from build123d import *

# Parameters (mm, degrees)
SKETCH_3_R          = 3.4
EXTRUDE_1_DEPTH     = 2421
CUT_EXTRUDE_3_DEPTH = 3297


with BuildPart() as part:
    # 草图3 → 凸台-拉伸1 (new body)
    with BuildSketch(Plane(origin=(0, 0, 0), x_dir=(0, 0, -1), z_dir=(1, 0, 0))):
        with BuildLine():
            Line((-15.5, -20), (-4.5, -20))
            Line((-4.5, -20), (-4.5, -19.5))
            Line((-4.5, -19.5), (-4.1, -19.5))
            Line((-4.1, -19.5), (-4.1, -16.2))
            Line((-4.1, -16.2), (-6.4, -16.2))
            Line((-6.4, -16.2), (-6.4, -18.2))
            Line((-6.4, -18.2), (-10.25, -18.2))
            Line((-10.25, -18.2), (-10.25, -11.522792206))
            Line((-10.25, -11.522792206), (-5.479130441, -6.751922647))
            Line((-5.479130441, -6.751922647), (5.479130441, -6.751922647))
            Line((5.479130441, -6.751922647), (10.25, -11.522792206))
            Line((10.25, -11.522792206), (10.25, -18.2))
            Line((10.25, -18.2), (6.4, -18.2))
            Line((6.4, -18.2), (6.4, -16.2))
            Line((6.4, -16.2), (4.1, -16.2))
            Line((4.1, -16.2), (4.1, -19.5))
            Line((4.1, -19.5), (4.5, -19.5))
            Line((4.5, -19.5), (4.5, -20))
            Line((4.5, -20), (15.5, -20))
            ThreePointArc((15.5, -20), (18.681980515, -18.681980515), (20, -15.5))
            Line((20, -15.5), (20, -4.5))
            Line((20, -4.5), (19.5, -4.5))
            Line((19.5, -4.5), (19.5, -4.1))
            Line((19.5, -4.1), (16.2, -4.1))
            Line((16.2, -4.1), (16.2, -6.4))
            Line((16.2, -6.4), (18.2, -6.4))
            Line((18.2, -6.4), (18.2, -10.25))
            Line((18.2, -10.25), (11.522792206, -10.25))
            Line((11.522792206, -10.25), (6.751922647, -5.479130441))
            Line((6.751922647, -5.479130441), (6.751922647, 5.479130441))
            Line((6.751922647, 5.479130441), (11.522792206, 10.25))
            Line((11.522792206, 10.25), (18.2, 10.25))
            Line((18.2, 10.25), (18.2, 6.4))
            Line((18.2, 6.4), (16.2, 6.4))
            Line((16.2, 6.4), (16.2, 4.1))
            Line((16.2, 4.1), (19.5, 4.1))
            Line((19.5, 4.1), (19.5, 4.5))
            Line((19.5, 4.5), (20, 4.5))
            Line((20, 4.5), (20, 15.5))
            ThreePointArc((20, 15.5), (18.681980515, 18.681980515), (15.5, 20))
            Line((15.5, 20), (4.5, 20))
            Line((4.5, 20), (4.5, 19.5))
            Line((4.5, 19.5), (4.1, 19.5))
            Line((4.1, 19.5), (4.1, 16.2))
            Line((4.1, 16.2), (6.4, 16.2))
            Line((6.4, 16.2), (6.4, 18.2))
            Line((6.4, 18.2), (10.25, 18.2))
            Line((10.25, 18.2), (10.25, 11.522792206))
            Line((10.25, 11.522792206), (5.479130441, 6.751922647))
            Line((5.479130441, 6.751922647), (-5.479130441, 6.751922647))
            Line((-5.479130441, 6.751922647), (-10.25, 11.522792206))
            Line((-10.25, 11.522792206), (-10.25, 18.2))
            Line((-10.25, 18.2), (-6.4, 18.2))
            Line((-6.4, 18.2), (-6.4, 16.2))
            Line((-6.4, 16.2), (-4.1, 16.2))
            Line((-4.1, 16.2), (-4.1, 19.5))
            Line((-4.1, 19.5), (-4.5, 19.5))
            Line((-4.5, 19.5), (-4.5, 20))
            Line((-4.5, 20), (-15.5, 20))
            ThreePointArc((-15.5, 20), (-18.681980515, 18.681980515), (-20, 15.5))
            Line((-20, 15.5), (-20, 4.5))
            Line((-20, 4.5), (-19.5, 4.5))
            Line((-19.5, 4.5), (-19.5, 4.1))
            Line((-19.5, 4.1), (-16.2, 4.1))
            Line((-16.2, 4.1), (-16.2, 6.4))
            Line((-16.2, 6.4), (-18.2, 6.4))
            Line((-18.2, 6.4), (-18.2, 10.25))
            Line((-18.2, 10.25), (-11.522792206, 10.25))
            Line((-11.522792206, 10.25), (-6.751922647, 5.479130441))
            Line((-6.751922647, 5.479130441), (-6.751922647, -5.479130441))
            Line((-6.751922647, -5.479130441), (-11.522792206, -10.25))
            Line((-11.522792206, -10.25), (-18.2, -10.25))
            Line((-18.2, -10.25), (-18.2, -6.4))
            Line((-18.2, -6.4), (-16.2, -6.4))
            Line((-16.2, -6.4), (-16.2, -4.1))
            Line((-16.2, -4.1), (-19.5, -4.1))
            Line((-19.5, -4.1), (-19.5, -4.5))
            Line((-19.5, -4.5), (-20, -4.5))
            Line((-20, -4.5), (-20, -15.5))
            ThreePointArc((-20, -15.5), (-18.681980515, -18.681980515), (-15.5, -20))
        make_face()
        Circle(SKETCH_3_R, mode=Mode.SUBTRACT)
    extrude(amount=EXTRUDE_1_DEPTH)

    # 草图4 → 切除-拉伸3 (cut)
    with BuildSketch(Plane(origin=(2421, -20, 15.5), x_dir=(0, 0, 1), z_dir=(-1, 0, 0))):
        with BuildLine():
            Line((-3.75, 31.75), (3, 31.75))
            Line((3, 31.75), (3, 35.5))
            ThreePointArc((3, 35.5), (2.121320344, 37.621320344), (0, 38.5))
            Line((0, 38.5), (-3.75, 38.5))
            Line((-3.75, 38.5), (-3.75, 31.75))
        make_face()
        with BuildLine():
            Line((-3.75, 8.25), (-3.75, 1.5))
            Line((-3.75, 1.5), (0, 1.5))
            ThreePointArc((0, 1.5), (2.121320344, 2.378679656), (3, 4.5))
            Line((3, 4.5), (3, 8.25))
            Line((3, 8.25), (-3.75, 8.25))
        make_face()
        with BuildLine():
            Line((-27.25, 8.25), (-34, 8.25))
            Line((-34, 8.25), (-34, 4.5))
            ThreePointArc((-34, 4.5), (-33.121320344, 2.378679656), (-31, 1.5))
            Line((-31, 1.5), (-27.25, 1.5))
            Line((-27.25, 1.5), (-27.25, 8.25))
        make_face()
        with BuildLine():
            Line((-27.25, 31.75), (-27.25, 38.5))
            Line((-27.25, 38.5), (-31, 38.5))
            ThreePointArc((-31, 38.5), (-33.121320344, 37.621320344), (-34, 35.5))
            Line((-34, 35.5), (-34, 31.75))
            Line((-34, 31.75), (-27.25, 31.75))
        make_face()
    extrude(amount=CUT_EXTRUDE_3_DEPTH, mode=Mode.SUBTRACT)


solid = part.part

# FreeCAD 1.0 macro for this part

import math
import FreeCAD as App
import Part
import Sketcher

V = App.Vector

doc = App.newDocument("Part")
params = doc.addObject("Spreadsheet::Sheet", "Params")
for row, (alias, value) in enumerate([
    ("sketch1_diameter", "6.8 mm"),
    ("sketch1_radius", "4.5 mm"),
    ("sketch1_width", "2 mm"),
    ("sketch1_width2", "11 mm"),
    ("sketch1_width3", "0.5 mm"),
    ("pad1_length", "2421 mm"),
    ("sketch2_radius", "3 mm"),
    ("sketch2_width", "3.75 mm"),
    ("pocket1_length", "3297 mm"),
], start=1):
    params.set(f"A{row}", alias)
    params.set(f"B{row}", "=" + value)
    params.setAlias(f"B{row}", alias)

body = doc.addObject("PartDesign::Body", "Body")

# Sketch on YZ plane
sketch1 = body.newObject("Sketcher::SketchObject", "Sketch")
sketch1.AttachmentSupport = (doc.getObject("YZ_Plane"), [""])
sketch1.MapMode = "FlatFace"
sketch1.addGeometry([
    Part.LineSegment(V(-20, 15.5, 0), V(-20, 4.5, 0)),  # 0
    Part.LineSegment(V(-20, 4.5, 0), V(-19.5, 4.5, 0)),  # 1
    Part.LineSegment(V(-19.5, 4.5, 0), V(-19.5, 4.1, 0)),  # 2
    Part.LineSegment(V(-19.5, 4.1, 0), V(-16.2, 4.1, 0)),  # 3
    Part.LineSegment(V(-16.2, 4.1, 0), V(-16.2, 6.4, 0)),  # 4
    Part.LineSegment(V(-16.2, 6.4, 0), V(-18.2, 6.4, 0)),  # 5
    Part.LineSegment(V(-18.2, 6.4, 0), V(-18.2, 10.25, 0)),  # 6
    Part.LineSegment(V(-18.2, 10.25, 0), V(-11.52, 10.25, 0)),  # 7
    Part.LineSegment(V(-11.52, 10.25, 0), V(-6.75, 5.48, 0)),  # 8
    Part.LineSegment(V(-6.75, 5.48, 0), V(-6.75, -5.48, 0)),  # 9
    Part.LineSegment(V(-6.75, -5.48, 0), V(-11.52, -10.25, 0)),  # 10
    Part.LineSegment(V(-11.52, -10.25, 0), V(-18.2, -10.25, 0)),  # 11
    Part.LineSegment(V(-18.2, -10.25, 0), V(-18.2, -6.4, 0)),  # 12
    Part.LineSegment(V(-18.2, -6.4, 0), V(-16.2, -6.4, 0)),  # 13
    Part.LineSegment(V(-16.2, -6.4, 0), V(-16.2, -4.1, 0)),  # 14
    Part.LineSegment(V(-16.2, -4.1, 0), V(-19.5, -4.1, 0)),  # 15
    Part.LineSegment(V(-19.5, -4.1, 0), V(-19.5, -4.5, 0)),  # 16
    Part.LineSegment(V(-19.5, -4.5, 0), V(-20, -4.5, 0)),  # 17
    Part.LineSegment(V(-20, -4.5, 0), V(-20, -15.5, 0)),  # 18
    Part.ArcOfCircle(Part.Circle(V(-15.5, -15.5, 0), V(0, 0, 1), 4.5), math.radians(-180), math.radians(-90)),  # 19
    Part.LineSegment(V(-15.5, -20, 0), V(-4.5, -20, 0)),  # 20
    Part.LineSegment(V(-4.5, -20, 0), V(-4.5, -19.5, 0)),  # 21
    Part.LineSegment(V(-4.5, -19.5, 0), V(-4.1, -19.5, 0)),  # 22
    Part.LineSegment(V(-4.1, -19.5, 0), V(-4.1, -16.2, 0)),  # 23
    Part.LineSegment(V(-4.1, -16.2, 0), V(-6.4, -16.2, 0)),  # 24
    Part.LineSegment(V(-6.4, -16.2, 0), V(-6.4, -18.2, 0)),  # 25
    Part.LineSegment(V(-6.4, -18.2, 0), V(-10.25, -18.2, 0)),  # 26
    Part.LineSegment(V(-10.25, -18.2, 0), V(-10.25, -11.52, 0)),  # 27
    Part.LineSegment(V(-10.25, -11.52, 0), V(-5.48, -6.75, 0)),  # 28
    Part.LineSegment(V(-5.48, -6.75, 0), V(5.48, -6.75, 0)),  # 29
    Part.LineSegment(V(5.48, -6.75, 0), V(10.25, -11.52, 0)),  # 30
    Part.LineSegment(V(10.25, -11.52, 0), V(10.25, -18.2, 0)),  # 31
    Part.LineSegment(V(10.25, -18.2, 0), V(6.4, -18.2, 0)),  # 32
    Part.LineSegment(V(6.4, -18.2, 0), V(6.4, -16.2, 0)),  # 33
    Part.LineSegment(V(6.4, -16.2, 0), V(4.1, -16.2, 0)),  # 34
    Part.LineSegment(V(4.1, -16.2, 0), V(4.1, -19.5, 0)),  # 35
    Part.LineSegment(V(4.1, -19.5, 0), V(4.5, -19.5, 0)),  # 36
    Part.LineSegment(V(4.5, -19.5, 0), V(4.5, -20, 0)),  # 37
    Part.LineSegment(V(4.5, -20, 0), V(15.5, -20, 0)),  # 38
    Part.ArcOfCircle(Part.Circle(V(15.5, -15.5, 0), V(0, 0, 1), 4.5), math.radians(-90), math.radians(0)),  # 39
    Part.LineSegment(V(20, -15.5, 0), V(20, -4.5, 0)),  # 40
    Part.LineSegment(V(20, -4.5, 0), V(19.5, -4.5, 0)),  # 41
    Part.LineSegment(V(19.5, -4.5, 0), V(19.5, -4.1, 0)),  # 42
    Part.LineSegment(V(19.5, -4.1, 0), V(16.2, -4.1, 0)),  # 43
    Part.LineSegment(V(16.2, -4.1, 0), V(16.2, -6.4, 0)),  # 44
    Part.LineSegment(V(16.2, -6.4, 0), V(18.2, -6.4, 0)),  # 45
    Part.LineSegment(V(18.2, -6.4, 0), V(18.2, -10.25, 0)),  # 46
    Part.LineSegment(V(18.2, -10.25, 0), V(11.52, -10.25, 0)),  # 47
    Part.LineSegment(V(11.52, -10.25, 0), V(6.75, -5.48, 0)),  # 48
    Part.LineSegment(V(6.75, -5.48, 0), V(6.75, 5.48, 0)),  # 49
    Part.LineSegment(V(6.75, 5.48, 0), V(11.52, 10.25, 0)),  # 50
    Part.LineSegment(V(11.52, 10.25, 0), V(18.2, 10.25, 0)),  # 51
    Part.LineSegment(V(18.2, 10.25, 0), V(18.2, 6.4, 0)),  # 52
    Part.LineSegment(V(18.2, 6.4, 0), V(16.2, 6.4, 0)),  # 53
    Part.LineSegment(V(16.2, 6.4, 0), V(16.2, 4.1, 0)),  # 54
    Part.LineSegment(V(16.2, 4.1, 0), V(19.5, 4.1, 0)),  # 55
    Part.LineSegment(V(19.5, 4.1, 0), V(19.5, 4.5, 0)),  # 56
    Part.LineSegment(V(19.5, 4.5, 0), V(20, 4.5, 0)),  # 57
    Part.LineSegment(V(20, 4.5, 0), V(20, 15.5, 0)),  # 58
    Part.ArcOfCircle(Part.Circle(V(15.5, 15.5, 0), V(0, 0, 1), 4.5), math.radians(0), math.radians(90)),  # 59
    Part.LineSegment(V(15.5, 20, 0), V(4.5, 20, 0)),  # 60
    Part.LineSegment(V(4.5, 20, 0), V(4.5, 19.5, 0)),  # 61
    Part.LineSegment(V(4.5, 19.5, 0), V(4.1, 19.5, 0)),  # 62
    Part.LineSegment(V(4.1, 19.5, 0), V(4.1, 16.2, 0)),  # 63
    Part.LineSegment(V(4.1, 16.2, 0), V(6.4, 16.2, 0)),  # 64
    Part.LineSegment(V(6.4, 16.2, 0), V(6.4, 18.2, 0)),  # 65
    Part.LineSegment(V(6.4, 18.2, 0), V(10.25, 18.2, 0)),  # 66
    Part.LineSegment(V(10.25, 18.2, 0), V(10.25, 11.52, 0)),  # 67
    Part.LineSegment(V(10.25, 11.52, 0), V(5.48, 6.75, 0)),  # 68
    Part.LineSegment(V(5.48, 6.75, 0), V(-5.48, 6.75, 0)),  # 69
    Part.LineSegment(V(-5.48, 6.75, 0), V(-10.25, 11.52, 0)),  # 70
    Part.LineSegment(V(-10.25, 11.52, 0), V(-10.25, 18.2, 0)),  # 71
    Part.LineSegment(V(-10.25, 18.2, 0), V(-6.4, 18.2, 0)),  # 72
    Part.LineSegment(V(-6.4, 18.2, 0), V(-6.4, 16.2, 0)),  # 73
    Part.LineSegment(V(-6.4, 16.2, 0), V(-4.1, 16.2, 0)),  # 74
    Part.LineSegment(V(-4.1, 16.2, 0), V(-4.1, 19.5, 0)),  # 75
    Part.LineSegment(V(-4.1, 19.5, 0), V(-4.5, 19.5, 0)),  # 76
    Part.LineSegment(V(-4.5, 19.5, 0), V(-4.5, 20, 0)),  # 77
    Part.LineSegment(V(-4.5, 20, 0), V(-15.5, 20, 0)),  # 78
    Part.ArcOfCircle(Part.Circle(V(-15.5, 15.5, 0), V(0, 0, 1), 4.5), math.radians(90), math.radians(180)),  # 79
    Part.Circle(V(0, 0, 0), V(0, 0, 1), 3.4),  # 80
], False)
sketch1.addConstraint([
    Sketcher.Constraint("Coincident", 0, 2, 1, 1),
    Sketcher.Constraint("Coincident", 1, 2, 2, 1),
    Sketcher.Constraint("Coincident", 2, 2, 3, 1),
    Sketcher.Constraint("Coincident", 3, 2, 4, 1),
    Sketcher.Constraint("Coincident", 4, 2, 5, 1),
    Sketcher.Constraint("Coincident", 5, 2, 6, 1),
    Sketcher.Constraint("Coincident", 6, 2, 7, 1),
    Sketcher.Constraint("Coincident", 7, 2, 8, 1),
    Sketcher.Constraint("Coincident", 8, 2, 9, 1),
    Sketcher.Constraint("Coincident", 9, 2, 10, 1),
    Sketcher.Constraint("Coincident", 10, 2, 11, 1),
    Sketcher.Constraint("Coincident", 11, 2, 12, 1),
    Sketcher.Constraint("Coincident", 12, 2, 13, 1),
    Sketcher.Constraint("Coincident", 13, 2, 14, 1),
    Sketcher.Constraint("Coincident", 14, 2, 15, 1),
    Sketcher.Constraint("Coincident", 15, 2, 16, 1),
    Sketcher.Constraint("Coincident", 16, 2, 17, 1),
    Sketcher.Constraint("Coincident", 17, 2, 18, 1),
    Sketcher.Constraint("Tangent", 18, 2, 19, 1),
    Sketcher.Constraint("Tangent", 19, 2, 20, 1),
    Sketcher.Constraint("Coincident", 20, 2, 21, 1),
    Sketcher.Constraint("Coincident", 21, 2, 22, 1),
    Sketcher.Constraint("Coincident", 22, 2, 23, 1),
    Sketcher.Constraint("Coincident", 23, 2, 24, 1),
    Sketcher.Constraint("Coincident", 24, 2, 25, 1),
    Sketcher.Constraint("Coincident", 25, 2, 26, 1),
    Sketcher.Constraint("Coincident", 26, 2, 27, 1),
    Sketcher.Constraint("Coincident", 27, 2, 28, 1),
    Sketcher.Constraint("Coincident", 28, 2, 29, 1),
    Sketcher.Constraint("Coincident", 29, 2, 30, 1),
    Sketcher.Constraint("Coincident", 30, 2, 31, 1),
    Sketcher.Constraint("Coincident", 31, 2, 32, 1),
    Sketcher.Constraint("Coincident", 32, 2, 33, 1),
    Sketcher.Constraint("Coincident", 33, 2, 34, 1),
    Sketcher.Constraint("Coincident", 34, 2, 35, 1),
    Sketcher.Constraint("Coincident", 35, 2, 36, 1),
    Sketcher.Constraint("Coincident", 36, 2, 37, 1),
    Sketcher.Constraint("Coincident", 37, 2, 38, 1),
    Sketcher.Constraint("Tangent", 38, 2, 39, 1),
    Sketcher.Constraint("Tangent", 39, 2, 40, 1),
    Sketcher.Constraint("Coincident", 40, 2, 41, 1),
    Sketcher.Constraint("Coincident", 41, 2, 42, 1),
    Sketcher.Constraint("Coincident", 42, 2, 43, 1),
    Sketcher.Constraint("Coincident", 43, 2, 44, 1),
    Sketcher.Constraint("Coincident", 44, 2, 45, 1),
    Sketcher.Constraint("Coincident", 45, 2, 46, 1),
    Sketcher.Constraint("Coincident", 46, 2, 47, 1),
    Sketcher.Constraint("Coincident", 47, 2, 48, 1),
    Sketcher.Constraint("Coincident", 48, 2, 49, 1),
    Sketcher.Constraint("Coincident", 49, 2, 50, 1),
    Sketcher.Constraint("Coincident", 50, 2, 51, 1),
    Sketcher.Constraint("Coincident", 51, 2, 52, 1),
    Sketcher.Constraint("Coincident", 52, 2, 53, 1),
    Sketcher.Constraint("Coincident", 53, 2, 54, 1),
    Sketcher.Constraint("Coincident", 54, 2, 55, 1),
    Sketcher.Constraint("Coincident", 55, 2, 56, 1),
    Sketcher.Constraint("Coincident", 56, 2, 57, 1),
    Sketcher.Constraint("Coincident", 57, 2, 58, 1),
    Sketcher.Constraint("Tangent", 58, 2, 59, 1),
    Sketcher.Constraint("Tangent", 59, 2, 60, 1),
    Sketcher.Constraint("Coincident", 60, 2, 61, 1),
    Sketcher.Constraint("Coincident", 61, 2, 62, 1),
    Sketcher.Constraint("Coincident", 62, 2, 63, 1),
    Sketcher.Constraint("Coincident", 63, 2, 64, 1),
    Sketcher.Constraint("Coincident", 64, 2, 65, 1),
    Sketcher.Constraint("Coincident", 65, 2, 66, 1),
    Sketcher.Constraint("Coincident", 66, 2, 67, 1),
    Sketcher.Constraint("Coincident", 67, 2, 68, 1),
    Sketcher.Constraint("Coincident", 68, 2, 69, 1),
    Sketcher.Constraint("Coincident", 69, 2, 70, 1),
    Sketcher.Constraint("Coincident", 70, 2, 71, 1),
    Sketcher.Constraint("Coincident", 71, 2, 72, 1),
    Sketcher.Constraint("Coincident", 72, 2, 73, 1),
    Sketcher.Constraint("Coincident", 73, 2, 74, 1),
    Sketcher.Constraint("Coincident", 74, 2, 75, 1),
    Sketcher.Constraint("Coincident", 75, 2, 76, 1),
    Sketcher.Constraint("Coincident", 76, 2, 77, 1),
    Sketcher.Constraint("Coincident", 77, 2, 78, 1),
    Sketcher.Constraint("Tangent", 78, 2, 79, 1),
    Sketcher.Constraint("Tangent", 79, 2, 0, 1),
    Sketcher.Constraint("Vertical", 0),
    Sketcher.Constraint("Horizontal", 1),
    Sketcher.Constraint("Vertical", 2),
    Sketcher.Constraint("Horizontal", 3),
    Sketcher.Constraint("Vertical", 4),
    Sketcher.Constraint("Horizontal", 5),
    Sketcher.Constraint("Vertical", 6),
    Sketcher.Constraint("Horizontal", 7),
    Sketcher.Constraint("Vertical", 9),
    Sketcher.Constraint("Horizontal", 11),
    Sketcher.Constraint("Vertical", 12),
    Sketcher.Constraint("Horizontal", 13),
    Sketcher.Constraint("Vertical", 14),
    Sketcher.Constraint("Horizontal", 15),
    Sketcher.Constraint("Vertical", 16),
    Sketcher.Constraint("Horizontal", 17),
    Sketcher.Constraint("Vertical", 18),
    Sketcher.Constraint("Horizontal", 20),
    Sketcher.Constraint("Vertical", 21),
    Sketcher.Constraint("Horizontal", 22),
    Sketcher.Constraint("Vertical", 23),
    Sketcher.Constraint("Horizontal", 24),
    Sketcher.Constraint("Vertical", 25),
    Sketcher.Constraint("Horizontal", 26),
    Sketcher.Constraint("Vertical", 27),
    Sketcher.Constraint("Horizontal", 29),
    Sketcher.Constraint("Vertical", 31),
    Sketcher.Constraint("Horizontal", 32),
    Sketcher.Constraint("Vertical", 33),
    Sketcher.Constraint("Horizontal", 34),
    Sketcher.Constraint("Vertical", 35),
    Sketcher.Constraint("Horizontal", 36),
    Sketcher.Constraint("Vertical", 37),
    Sketcher.Constraint("Horizontal", 38),
    Sketcher.Constraint("Vertical", 40),
    Sketcher.Constraint("Horizontal", 41),
    Sketcher.Constraint("Vertical", 42),
    Sketcher.Constraint("Horizontal", 43),
    Sketcher.Constraint("Vertical", 44),
    Sketcher.Constraint("Horizontal", 45),
    Sketcher.Constraint("Vertical", 46),
    Sketcher.Constraint("Horizontal", 47),
    Sketcher.Constraint("Vertical", 49),
    Sketcher.Constraint("Horizontal", 51),
    Sketcher.Constraint("Vertical", 52),
    Sketcher.Constraint("Horizontal", 53),
    Sketcher.Constraint("Vertical", 54),
    Sketcher.Constraint("Horizontal", 55),
    Sketcher.Constraint("Vertical", 56),
    Sketcher.Constraint("Horizontal", 57),
    Sketcher.Constraint("Vertical", 58),
    Sketcher.Constraint("Horizontal", 60),
    Sketcher.Constraint("Vertical", 61),
    Sketcher.Constraint("Horizontal", 62),
    Sketcher.Constraint("Vertical", 63),
    Sketcher.Constraint("Horizontal", 64),
    Sketcher.Constraint("Vertical", 65),
    Sketcher.Constraint("Horizontal", 66),
    Sketcher.Constraint("Vertical", 67),
    Sketcher.Constraint("Horizontal", 69),
    Sketcher.Constraint("Vertical", 71),
    Sketcher.Constraint("Horizontal", 72),
    Sketcher.Constraint("Vertical", 73),
    Sketcher.Constraint("Horizontal", 74),
    Sketcher.Constraint("Vertical", 75),
    Sketcher.Constraint("Horizontal", 76),
    Sketcher.Constraint("Vertical", 77),
    Sketcher.Constraint("Horizontal", 78),
    Sketcher.Constraint("Coincident", 80, 3, -1, 1),
    Sketcher.Constraint("Equal", 19, 39),
    Sketcher.Constraint("Equal", 39, 59),
    Sketcher.Constraint("Equal", 59, 79),
    Sketcher.Constraint("Symmetric", 19, 3, 59, 3, -1, 1),
    Sketcher.Constraint("Symmetric", 39, 3, 79, 3, -1, 1),
    Sketcher.Constraint("Symmetric", 1, 2, 41, 2, -1, 1),
    Sketcher.Constraint("Symmetric", 3, 2, 43, 2, -1, 1),
    Sketcher.Constraint("Symmetric", 5, 2, 45, 2, -1, 1),
    Sketcher.Constraint("Symmetric", 7, 2, 47, 2, -1, 1),
    Sketcher.Constraint("Symmetric", 8, 2, 48, 2, -1, 1),
    Sketcher.Constraint("Symmetric", 10, 2, 50, 2, -1, 1),
    Sketcher.Constraint("Symmetric", 12, 2, 52, 2, -1, 1),
    Sketcher.Constraint("Symmetric", 14, 2, 54, 2, -1, 1),
    Sketcher.Constraint("Symmetric", 16, 2, 56, 2, -1, 1),
    Sketcher.Constraint("Symmetric", 21, 2, 61, 2, -1, 1),
    Sketcher.Constraint("Symmetric", 23, 2, 63, 2, -1, 1),
    Sketcher.Constraint("Symmetric", 25, 2, 65, 2, -1, 1),
    Sketcher.Constraint("Symmetric", 27, 2, 67, 2, -1, 1),
    Sketcher.Constraint("Symmetric", 28, 2, 68, 2, -1, 1),
    Sketcher.Constraint("Symmetric", 30, 2, 70, 2, -1, 1),
    Sketcher.Constraint("Symmetric", 32, 2, 72, 2, -1, 1),
    Sketcher.Constraint("Symmetric", 34, 2, 74, 2, -1, 1),
    Sketcher.Constraint("Symmetric", 36, 2, 76, 2, -1, 1),
    Sketcher.Constraint("Symmetric", 19, 3, 39, 3, -2),
    Sketcher.Constraint("Symmetric", 27, 2, 30, 2, -2),
    Sketcher.Constraint("Symmetric", 25, 2, 32, 2, -2),
    Sketcher.Constraint("Symmetric", 23, 2, 34, 2, -2),
    Sketcher.Constraint("Symmetric", 21, 2, 36, 2, -2),
    Sketcher.Constraint("Symmetric", 16, 2, 41, 2, -2),
    Sketcher.Constraint("Symmetric", 14, 2, 43, 2, -2),
    Sketcher.Constraint("Symmetric", 12, 2, 45, 2, -2),
    Sketcher.Constraint("Symmetric", 10, 2, 47, 2, -2),
    Sketcher.Constraint("Perpendicular", 8, 10),
    Sketcher.Constraint("Parallel", 10, 28),
    Sketcher.Constraint("Perpendicular", 28, 30),
    Sketcher.Constraint("Perpendicular", 48, 50),
    Sketcher.Constraint("Perpendicular", 68, 70),
    Sketcher.Constraint("Horizontal", 9, 2, 48, 2),
    Sketcher.Constraint("Equal", 78, 0),
    Sketcher.Constraint("Equal", 76, 2),
    Sketcher.Constraint("Equal", 74, 4),
    Sketcher.Constraint("Equal", 72, 6),
    Sketcher.Constraint("Equal", 69, 9),
    Sketcher.Constraint("Equal", 57, 21),
    Sketcher.Constraint("Equal", 55, 23),
    Sketcher.Constraint("Equal", 53, 25),
    Sketcher.Constraint("Equal", 51, 27),
    Sketcher.Constraint("Equal", 10, 28),
    Sketcher.Constraint("Diameter", 80, 6.8),
    Sketcher.Constraint("Radius", 19, 4.5),
    Sketcher.Constraint("DistanceX", 5, 2, 5, 1, 2.0),
    Sketcher.Constraint("DistanceX", 20, 1, 20, 2, 11.0),
    Sketcher.Constraint("DistanceX", 1, 1, 1, 2, 0.5),
    Sketcher.Constraint("DistanceX", 3, 1, 3, 2, 3.3),
    Sketcher.Constraint("DistanceX", 22, 1, 22, 2, 0.4),
    Sketcher.Constraint("DistanceX", 24, 2, 24, 1, 2.3),
    Sketcher.Constraint("DistanceX", 0, 2, -1, 1, 20.0),
    Sketcher.Constraint("DistanceX", 26, 2, 26, 1, 3.85),
    Sketcher.Constraint("DistanceX", 29, 1, 29, 2, 10.958261),
    Sketcher.Constraint("DistanceX", 7, 1, 7, 2, 6.677208),
])
sketch1.setExpression("Constraints[197]", "Params.sketch1_diameter")
sketch1.setExpression("Constraints[198]", "Params.sketch1_radius")
sketch1.setExpression("Constraints[199]", "Params.sketch1_width")
sketch1.setExpression("Constraints[200]", "Params.sketch1_width2")
sketch1.setExpression("Constraints[201]", "Params.sketch1_width3")
pad1 = body.newObject("PartDesign::Pad", "Pad")
pad1.Profile = sketch1
pad1.setExpression("Length", "Params.pad1_length")

# Sketch on YZ plane
sketch2 = body.newObject("Sketcher::SketchObject", "Sketch001")
sketch2.AttachmentSupport = (doc.getObject("YZ_Plane"), [""])
sketch2.MapMode = "FlatFace"
sketch2.AttachmentOffset = App.Placement(V(0, 0, 2421), App.Rotation())
sketch2.addGeometry([
    Part.LineSegment(V(11.8, 11.8, 0), V(11.8, 18.5, 0)),  # 0
    Part.LineSegment(V(11.8, 18.5, 0), V(15.5, 18.5, 0)),  # 1
    Part.ArcOfCircle(Part.Circle(V(15.5, 15.5, 0), V(0, 0, 1), 3), math.radians(0), math.radians(90)),  # 2
    Part.LineSegment(V(18.5, 15.5, 0), V(18.5, 11.8, 0)),  # 3
    Part.LineSegment(V(18.5, 11.8, 0), V(11.8, 11.8, 0)),  # 4
    Part.LineSegment(V(-11.8, 11.8, 0), V(-18.5, 11.8, 0)),  # 5
    Part.LineSegment(V(-18.5, 11.8, 0), V(-18.5, 15.5, 0)),  # 6
    Part.ArcOfCircle(Part.Circle(V(-15.5, 15.5, 0), V(0, 0, 1), 3), math.radians(90), math.radians(180)),  # 7
    Part.LineSegment(V(-15.5, 18.5, 0), V(-11.8, 18.5, 0)),  # 8
    Part.LineSegment(V(-11.8, 18.5, 0), V(-11.8, 11.8, 0)),  # 9
    Part.LineSegment(V(-11.8, -11.8, 0), V(-11.8, -18.5, 0)),  # 10
    Part.LineSegment(V(-11.8, -18.5, 0), V(-15.5, -18.5, 0)),  # 11
    Part.ArcOfCircle(Part.Circle(V(-15.5, -15.5, 0), V(0, 0, 1), 3), math.radians(180), math.radians(270)),  # 12
    Part.LineSegment(V(-18.5, -15.5, 0), V(-18.5, -11.8, 0)),  # 13
    Part.LineSegment(V(-18.5, -11.8, 0), V(-11.8, -11.8, 0)),  # 14
    Part.LineSegment(V(11.8, -11.8, 0), V(18.5, -11.8, 0)),  # 15
    Part.LineSegment(V(18.5, -11.8, 0), V(18.5, -15.5, 0)),  # 16
    Part.ArcOfCircle(Part.Circle(V(15.5, -15.5, 0), V(0, 0, 1), 3), math.radians(-90), math.radians(0)),  # 17
    Part.LineSegment(V(15.5, -18.5, 0), V(11.8, -18.5, 0)),  # 18
    Part.LineSegment(V(11.8, -18.5, 0), V(11.8, -11.8, 0)),  # 19
], False)
sketch2.addConstraint([
    Sketcher.Constraint("Coincident", 0, 2, 1, 1),
    Sketcher.Constraint("Tangent", 1, 2, 2, 2),
    Sketcher.Constraint("Tangent", 2, 1, 3, 1),
    Sketcher.Constraint("Coincident", 3, 2, 4, 1),
    Sketcher.Constraint("Coincident", 4, 2, 0, 1),
    Sketcher.Constraint("Coincident", 5, 2, 6, 1),
    Sketcher.Constraint("Tangent", 6, 2, 7, 2),
    Sketcher.Constraint("Tangent", 7, 1, 8, 1),
    Sketcher.Constraint("Coincident", 8, 2, 9, 1),
    Sketcher.Constraint("Coincident", 9, 2, 5, 1),
    Sketcher.Constraint("Coincident", 10, 2, 11, 1),
    Sketcher.Constraint("Tangent", 11, 2, 12, 2),
    Sketcher.Constraint("Tangent", 12, 1, 13, 1),
    Sketcher.Constraint("Coincident", 13, 2, 14, 1),
    Sketcher.Constraint("Coincident", 14, 2, 10, 1),
    Sketcher.Constraint("Coincident", 15, 2, 16, 1),
    Sketcher.Constraint("Tangent", 16, 2, 17, 2),
    Sketcher.Constraint("Tangent", 17, 1, 18, 1),
    Sketcher.Constraint("Coincident", 18, 2, 19, 1),
    Sketcher.Constraint("Coincident", 19, 2, 15, 1),
    Sketcher.Constraint("Vertical", 0),
    Sketcher.Constraint("Horizontal", 1),
    Sketcher.Constraint("Vertical", 3),
    Sketcher.Constraint("Horizontal", 4),
    Sketcher.Constraint("Horizontal", 5),
    Sketcher.Constraint("Vertical", 6),
    Sketcher.Constraint("Horizontal", 8),
    Sketcher.Constraint("Vertical", 9),
    Sketcher.Constraint("Vertical", 10),
    Sketcher.Constraint("Horizontal", 11),
    Sketcher.Constraint("Vertical", 13),
    Sketcher.Constraint("Horizontal", 14),
    Sketcher.Constraint("Horizontal", 15),
    Sketcher.Constraint("Vertical", 16),
    Sketcher.Constraint("Horizontal", 18),
    Sketcher.Constraint("Vertical", 19),
    Sketcher.Constraint("Equal", 2, 7),
    Sketcher.Constraint("Equal", 7, 12),
    Sketcher.Constraint("Equal", 12, 17),
    Sketcher.Constraint("Symmetric", 2, 3, 12, 3, -1, 1),
    Sketcher.Constraint("Symmetric", 7, 3, 17, 3, -1, 1),
    Sketcher.Constraint("Symmetric", 4, 2, 14, 2, -1, 1),
    Sketcher.Constraint("Symmetric", 9, 2, 19, 2, -1, 1),
    Sketcher.Constraint("Symmetric", 2, 3, 7, 3, -2),
    Sketcher.Constraint("Symmetric", 4, 2, 9, 2, -2),
    Sketcher.Constraint("Equal", 15, 0),
    Sketcher.Constraint("Radius", 2, 3.0),
    Sketcher.Constraint("DistanceX", 7, 3, 2, 3, 31.0),
    Sketcher.Constraint("DistanceY", 12, 3, 7, 3, 31.0),
    Sketcher.Constraint("DistanceX", 1, 1, 1, 2, 3.75),
])
sketch2.setExpression("Constraints[46]", "Params.sketch2_radius")
sketch2.setExpression("Constraints[49]", "Params.sketch2_width")
pocket1 = body.newObject("PartDesign::Pocket", "Pocket")
pocket1.Profile = sketch2
pocket1.setExpression("Length", "Params.pocket1_length")

doc.recompute()
